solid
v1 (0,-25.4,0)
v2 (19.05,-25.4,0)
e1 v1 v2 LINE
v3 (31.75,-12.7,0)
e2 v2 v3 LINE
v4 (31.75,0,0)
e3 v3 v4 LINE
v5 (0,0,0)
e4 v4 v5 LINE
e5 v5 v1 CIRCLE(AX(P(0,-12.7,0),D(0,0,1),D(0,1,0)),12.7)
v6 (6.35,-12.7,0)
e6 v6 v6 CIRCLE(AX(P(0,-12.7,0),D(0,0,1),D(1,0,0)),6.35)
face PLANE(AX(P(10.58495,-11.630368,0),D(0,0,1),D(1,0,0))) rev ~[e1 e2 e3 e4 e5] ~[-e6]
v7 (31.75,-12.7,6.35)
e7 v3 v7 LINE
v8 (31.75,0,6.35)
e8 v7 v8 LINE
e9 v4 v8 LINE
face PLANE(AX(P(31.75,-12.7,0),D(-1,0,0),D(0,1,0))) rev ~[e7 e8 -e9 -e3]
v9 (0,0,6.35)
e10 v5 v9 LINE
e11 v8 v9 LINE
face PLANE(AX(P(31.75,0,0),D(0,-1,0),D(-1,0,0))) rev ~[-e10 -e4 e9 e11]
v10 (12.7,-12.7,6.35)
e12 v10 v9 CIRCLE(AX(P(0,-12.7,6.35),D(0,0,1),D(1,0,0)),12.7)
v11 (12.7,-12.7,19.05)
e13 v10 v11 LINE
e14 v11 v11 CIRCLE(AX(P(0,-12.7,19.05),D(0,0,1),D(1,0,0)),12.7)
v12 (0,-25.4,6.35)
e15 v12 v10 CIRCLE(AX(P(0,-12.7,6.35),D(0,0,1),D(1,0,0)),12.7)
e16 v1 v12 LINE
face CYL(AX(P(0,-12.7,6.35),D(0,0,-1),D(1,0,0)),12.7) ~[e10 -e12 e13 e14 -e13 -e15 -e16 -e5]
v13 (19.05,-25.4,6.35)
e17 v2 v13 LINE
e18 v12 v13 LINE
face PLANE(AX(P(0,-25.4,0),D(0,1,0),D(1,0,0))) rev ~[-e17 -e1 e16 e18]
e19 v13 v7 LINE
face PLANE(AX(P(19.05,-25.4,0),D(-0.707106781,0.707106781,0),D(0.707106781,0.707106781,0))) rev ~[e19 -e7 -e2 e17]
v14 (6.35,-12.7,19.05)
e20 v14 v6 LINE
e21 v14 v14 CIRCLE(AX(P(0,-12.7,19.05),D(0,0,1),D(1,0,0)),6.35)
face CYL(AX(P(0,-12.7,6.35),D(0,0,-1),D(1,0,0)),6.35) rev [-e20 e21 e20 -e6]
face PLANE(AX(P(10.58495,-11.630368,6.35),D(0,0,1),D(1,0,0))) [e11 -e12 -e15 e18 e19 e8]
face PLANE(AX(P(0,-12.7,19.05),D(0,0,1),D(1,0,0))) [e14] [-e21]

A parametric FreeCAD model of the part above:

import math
import FreeCAD as App
import Part
import Sketcher
from FreeCAD import Vector
Q = App.Units.Quantity

doc = App.newDocument("Part")
body = doc.addObject("PartDesign::Body", "Body")

# Sketch on XY plane
sketch1 = body.newObject("Sketcher::SketchObject", "Sketch")
sketch1.AttachmentSupport = (doc.getObject("XY_Plane"), [""])
sketch1.MapMode = "FlatFace"
sketch1.addGeometry([
    Part.LineSegment(Vector(32, 0, 0), Vector(0, 0, 0)),  # 0
    Part.ArcOfCircle(Part.Circle(Vector(0, -13, 0), Vector(0, 0, 1), 13), math.radians(90), math.radians(270)),  # 1
    Part.LineSegment(Vector(0, -25, 0), Vector(19, -25, 0)),  # 2
    Part.LineSegment(Vector(19, -25, 0), Vector(32, -13, 0)),  # 3
    Part.LineSegment(Vector(32, -13, 0), Vector(32, 0, 0)),  # 4
    Part.Circle(Vector(0, -13, 0), Vector(0, 0, 1), 6),  # 5
], False)
sketch1.addConstraint([
    Sketcher.Constraint("Tangent", 0, 2, 1, 1),
    Sketcher.Constraint("Tangent", 1, 2, 2, 1),
    Sketcher.Constraint("Coincident", 2, 2, 3, 1),
    Sketcher.Constraint("Coincident", 3, 2, 4, 1),
    Sketcher.Constraint("Coincident", 4, 2, 0, 1),
    Sketcher.Constraint("Horizontal", 0),
    Sketcher.Constraint("Horizontal", 2),
    Sketcher.Constraint("Vertical", 4),
    Sketcher.Constraint("Coincident", 0, 2, -1, 1),
    Sketcher.Constraint("Coincident", 5, 3, 1, 3),
    Sketcher.Constraint("Horizontal", 5, 3, 3, 2),
    Sketcher.Constraint("Diameter", 5, Q("0.5 in")),
    Sketcher.Constraint("Radius", 1, Q("0.5 in")),
    Sketcher.Constraint("Angle", 3, Q("45 deg")),
    Sketcher.Constraint("DistanceX", 0, 2, 0, 1, Q("1.25 in")),
])
pad1 = body.newObject("PartDesign::Pad", "Pad")
pad1.Profile = sketch1
pad1.Length = Q("0.25 in")

# Sketch on XY plane
sketch2 = body.newObject("Sketcher::SketchObject", "Sketch001")
sketch2.AttachmentSupport = (doc.getObject("XY_Plane"), [""])
sketch2.MapMode = "FlatFace"
sketch2.AttachmentOffset = App.Placement(Vector(0, 0, 0.25 * 25.4), App.Rotation())
sketch2.addGeometry([
    Part.Circle(Vector(0, -13, 0), Vector(0, 0, 1), 13),
    Part.Circle(Vector(0, -13, 0), Vector(0, 0, 1), 6),
], False)
sketch2.addConstraint([
    Sketcher.Constraint("Coincident", 1, 3, 0, 3),
    Sketcher.Constraint("PointOnObject", 0, 3, -2),
    Sketcher.Constraint("Diameter", 0, Q("1 in")),
    Sketcher.Constraint("Diameter", 1, Q("0.5 in")),
    Sketcher.Constraint("DistanceY", 0, 3, -1, 1, Q("0.5 in")),
])
pad2 = body.newObject("PartDesign::Pad", "Pad001")
pad2.Profile = sketch2
pad2.Length = Q("0.5 in")

doc.recompute()
